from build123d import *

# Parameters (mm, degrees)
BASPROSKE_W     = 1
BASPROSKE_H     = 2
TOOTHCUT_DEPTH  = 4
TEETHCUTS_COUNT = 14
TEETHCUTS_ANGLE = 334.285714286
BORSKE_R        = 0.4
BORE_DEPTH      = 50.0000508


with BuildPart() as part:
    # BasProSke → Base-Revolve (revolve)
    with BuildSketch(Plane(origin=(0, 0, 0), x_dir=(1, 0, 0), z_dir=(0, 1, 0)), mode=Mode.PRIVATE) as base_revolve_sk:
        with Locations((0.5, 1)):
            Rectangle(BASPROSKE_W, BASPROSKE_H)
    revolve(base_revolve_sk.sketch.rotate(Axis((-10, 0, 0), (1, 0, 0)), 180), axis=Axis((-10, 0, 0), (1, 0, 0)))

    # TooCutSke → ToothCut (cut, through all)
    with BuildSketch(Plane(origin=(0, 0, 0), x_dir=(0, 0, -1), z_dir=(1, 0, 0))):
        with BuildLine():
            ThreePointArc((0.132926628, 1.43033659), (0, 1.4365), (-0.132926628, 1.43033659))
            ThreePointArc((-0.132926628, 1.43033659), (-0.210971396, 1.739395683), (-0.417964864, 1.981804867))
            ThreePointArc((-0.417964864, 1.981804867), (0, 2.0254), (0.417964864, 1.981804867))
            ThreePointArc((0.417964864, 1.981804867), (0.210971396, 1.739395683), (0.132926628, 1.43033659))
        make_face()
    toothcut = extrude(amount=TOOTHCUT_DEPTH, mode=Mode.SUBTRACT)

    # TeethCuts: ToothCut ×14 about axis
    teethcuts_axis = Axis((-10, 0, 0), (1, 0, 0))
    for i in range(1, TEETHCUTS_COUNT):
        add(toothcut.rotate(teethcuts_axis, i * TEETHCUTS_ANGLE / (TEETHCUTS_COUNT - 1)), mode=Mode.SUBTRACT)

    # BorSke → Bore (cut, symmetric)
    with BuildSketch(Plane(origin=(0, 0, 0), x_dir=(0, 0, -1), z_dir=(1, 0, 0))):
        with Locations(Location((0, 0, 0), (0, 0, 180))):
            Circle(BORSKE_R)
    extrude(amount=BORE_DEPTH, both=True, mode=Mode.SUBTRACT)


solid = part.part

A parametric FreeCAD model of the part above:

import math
import FreeCAD as App
import Part
import Sketcher
from FreeCAD import Vector
Q = App.Units.Quantity


def add_polygon(sketch, points):
    """Adds a closed chain of lines whose ends are joined by coincident constraints."""
    first, n = sketch.GeometryCount, len(points)
    for a, b in zip(points, points[1:] + points[:1]):
        sketch.addGeometry(Part.LineSegment(App.Vector(*a, 0), App.Vector(*b, 0)), False)
    for i in range(n):
        sketch.addConstraint(Sketcher.Constraint("Coincident", first + i, 2, first + (i + 1) % n, 1))

doc = App.newDocument("Part")
params = doc.addObject("Spreadsheet::Sheet", "Params")
for row, (alias, value) in enumerate([
    ("sketch1_width", "1 mm"),
    ("sketch1_height", "2 mm"),
    ("revolution_angle", "360 deg"),
    ("sketch2_radius", "0.7 mm"),
    ("sketch3_diameter", "0.8 mm"),
    ("pocket2_length", "100.000102 mm"),
], start=1):
    params.set(f"A{row}", alias)
    params.set(f"B{row}", "=" + value)
    params.setAlias(f"B{row}", alias)

body = doc.addObject("PartDesign::Body", "Body")

# Sketch on XZ plane
sketch1 = doc.addObject("Sketcher::SketchObject", "Sketch")
body.addObject(sketch1)
sketch1.AttachmentSupport = (doc.XZ_Plane, [""])
sketch1.MapMode = "FlatFace"
add_polygon(sketch1, [(0, -2), (0, 0), (1, 0), (1, -2)])  # lines 0-3
sketch1.addConstraint([
    Sketcher.Constraint("Vertical", 0),
    Sketcher.Constraint("Horizontal", 1),
    Sketcher.Constraint("Vertical", 2),
    Sketcher.Constraint("Horizontal", 3),
    Sketcher.Constraint("Coincident", 0, 2, -1, 1),
    Sketcher.Constraint("DistanceX", 1, 1, 1, 2, Q("1 mm")),
    Sketcher.Constraint("DistanceY", 0, 1, 0, 2, Q("2 mm")),
])
sketch1.setExpression("Constraints[9]", "Params.sketch1_width")
sketch1.setExpression("Constraints[10]", "Params.sketch1_height")
revolution = doc.addObject("PartDesign::Revolution", "Revolution")
body.addObject(revolution)
revolution.Profile = sketch1
revolution.ReferenceAxis = (sketch1, ["H_Axis"])
revolution.setExpression("Angle", "Params.revolution_angle")

# Sketch on YZ plane
sketch2 = doc.addObject("Sketcher::SketchObject", "Sketch001")
body.addObject(sketch2)
sketch2.AttachmentSupport = (doc.YZ_Plane, [""])
sketch2.MapMode = "FlatFace"
sketch2.addGeometry([
    Part.ArcOfCircle(Part.Circle(Vector(0, 0, 0), Vector(0, 0, 1), 1.44), math.radians(-5.31), math.radians(5.31)),
    Part.ArcOfCircle(Part.Circle(Vector(1.42, -0.83, 0), Vector(0, 0, 1), 0.7), math.radians(36), math.radians(89)),
    Part.ArcOfCircle(Part.Circle(Vector(0, 0, 0), Vector(0, 0, 1), 2.03), math.radians(-12), math.radians(12)),
    Part.ArcOfCircle(Part.Circle(Vector(1.42, 0.83, 0), Vector(0, 0, 1), 0.7), math.radians(-89), math.radians(-36)),
], False)
sketch2.addConstraint([
    Sketcher.Constraint("Coincident", 0, 1, 1, 2),
    Sketcher.Constraint("Coincident", 1, 1, 2, 1),
    Sketcher.Constraint("Coincident", 2, 2, 3, 2),
    Sketcher.Constraint("Coincident", 3, 1, 0, 2),
    Sketcher.Constraint("Coincident", 0, 3, -1, 1),
    Sketcher.Constraint("Coincident", 2, 3, -1, 1),
    Sketcher.Constraint("Equal", 1, 3),
    Sketcher.Constraint("Symmetric", 1, 3, 3, 3, -1),
    Sketcher.Constraint("Radius", 1, Q("0.7 mm")),
    Sketcher.Constraint("Radius", 0, Q("1.4365 mm")),
    Sketcher.Constraint("Radius", 2, Q("2.0254 mm")),
    Sketcher.Constraint("DistanceX", -1, 1, 1, 3, Q("1.417981 mm")),
    Sketcher.Constraint("DistanceX", 0, 1, 1, 1, Q("0.551468 mm")),
])
sketch2.setExpression("Constraints[8]", "Params.sketch2_radius")
pocket1 = doc.addObject("PartDesign::Pocket", "Pocket")
body.addObject(pocket1)
pocket1.Profile = sketch2
pocket1.Type = "ThroughAll"
pocket1.Reversed = True
doc.recompute()

polarpattern = doc.addObject("PartDesign::PolarPattern", "PolarPattern")
body.addObject(polarpattern)
polarpattern.Originals = [pocket1]
polarpattern.Axis = (doc.X_Axis, [""])
polarpattern.Angle = 360
polarpattern.Occurrences = 14
body.Tip = polarpattern

# Sketch on YZ plane
sketch3 = doc.addObject("Sketcher::SketchObject", "Sketch002")
body.addObject(sketch3)
sketch3.AttachmentSupport = (doc.YZ_Plane, [""])
sketch3.MapMode = "FlatFace"
sketch3.addGeometry(Part.Circle(Vector(0, 0, 0), Vector(0, 0, 1), 0.4), False)
sketch3.addConstraint([
    Sketcher.Constraint("Coincident", 0, 3, -1, 1),
    Sketcher.Constraint("Diameter", 0, Q("0.8 mm")),
])
sketch3.setExpression("Constraints[1]", "Params.sketch3_diameter")
pocket2 = doc.addObject("PartDesign::Pocket", "Pocket001")
body.addObject(pocket2)
pocket2.Profile = sketch3
pocket2.setExpression("Length", "Params.pocket2_length")
pocket2.Midplane = True

doc.recompute()
